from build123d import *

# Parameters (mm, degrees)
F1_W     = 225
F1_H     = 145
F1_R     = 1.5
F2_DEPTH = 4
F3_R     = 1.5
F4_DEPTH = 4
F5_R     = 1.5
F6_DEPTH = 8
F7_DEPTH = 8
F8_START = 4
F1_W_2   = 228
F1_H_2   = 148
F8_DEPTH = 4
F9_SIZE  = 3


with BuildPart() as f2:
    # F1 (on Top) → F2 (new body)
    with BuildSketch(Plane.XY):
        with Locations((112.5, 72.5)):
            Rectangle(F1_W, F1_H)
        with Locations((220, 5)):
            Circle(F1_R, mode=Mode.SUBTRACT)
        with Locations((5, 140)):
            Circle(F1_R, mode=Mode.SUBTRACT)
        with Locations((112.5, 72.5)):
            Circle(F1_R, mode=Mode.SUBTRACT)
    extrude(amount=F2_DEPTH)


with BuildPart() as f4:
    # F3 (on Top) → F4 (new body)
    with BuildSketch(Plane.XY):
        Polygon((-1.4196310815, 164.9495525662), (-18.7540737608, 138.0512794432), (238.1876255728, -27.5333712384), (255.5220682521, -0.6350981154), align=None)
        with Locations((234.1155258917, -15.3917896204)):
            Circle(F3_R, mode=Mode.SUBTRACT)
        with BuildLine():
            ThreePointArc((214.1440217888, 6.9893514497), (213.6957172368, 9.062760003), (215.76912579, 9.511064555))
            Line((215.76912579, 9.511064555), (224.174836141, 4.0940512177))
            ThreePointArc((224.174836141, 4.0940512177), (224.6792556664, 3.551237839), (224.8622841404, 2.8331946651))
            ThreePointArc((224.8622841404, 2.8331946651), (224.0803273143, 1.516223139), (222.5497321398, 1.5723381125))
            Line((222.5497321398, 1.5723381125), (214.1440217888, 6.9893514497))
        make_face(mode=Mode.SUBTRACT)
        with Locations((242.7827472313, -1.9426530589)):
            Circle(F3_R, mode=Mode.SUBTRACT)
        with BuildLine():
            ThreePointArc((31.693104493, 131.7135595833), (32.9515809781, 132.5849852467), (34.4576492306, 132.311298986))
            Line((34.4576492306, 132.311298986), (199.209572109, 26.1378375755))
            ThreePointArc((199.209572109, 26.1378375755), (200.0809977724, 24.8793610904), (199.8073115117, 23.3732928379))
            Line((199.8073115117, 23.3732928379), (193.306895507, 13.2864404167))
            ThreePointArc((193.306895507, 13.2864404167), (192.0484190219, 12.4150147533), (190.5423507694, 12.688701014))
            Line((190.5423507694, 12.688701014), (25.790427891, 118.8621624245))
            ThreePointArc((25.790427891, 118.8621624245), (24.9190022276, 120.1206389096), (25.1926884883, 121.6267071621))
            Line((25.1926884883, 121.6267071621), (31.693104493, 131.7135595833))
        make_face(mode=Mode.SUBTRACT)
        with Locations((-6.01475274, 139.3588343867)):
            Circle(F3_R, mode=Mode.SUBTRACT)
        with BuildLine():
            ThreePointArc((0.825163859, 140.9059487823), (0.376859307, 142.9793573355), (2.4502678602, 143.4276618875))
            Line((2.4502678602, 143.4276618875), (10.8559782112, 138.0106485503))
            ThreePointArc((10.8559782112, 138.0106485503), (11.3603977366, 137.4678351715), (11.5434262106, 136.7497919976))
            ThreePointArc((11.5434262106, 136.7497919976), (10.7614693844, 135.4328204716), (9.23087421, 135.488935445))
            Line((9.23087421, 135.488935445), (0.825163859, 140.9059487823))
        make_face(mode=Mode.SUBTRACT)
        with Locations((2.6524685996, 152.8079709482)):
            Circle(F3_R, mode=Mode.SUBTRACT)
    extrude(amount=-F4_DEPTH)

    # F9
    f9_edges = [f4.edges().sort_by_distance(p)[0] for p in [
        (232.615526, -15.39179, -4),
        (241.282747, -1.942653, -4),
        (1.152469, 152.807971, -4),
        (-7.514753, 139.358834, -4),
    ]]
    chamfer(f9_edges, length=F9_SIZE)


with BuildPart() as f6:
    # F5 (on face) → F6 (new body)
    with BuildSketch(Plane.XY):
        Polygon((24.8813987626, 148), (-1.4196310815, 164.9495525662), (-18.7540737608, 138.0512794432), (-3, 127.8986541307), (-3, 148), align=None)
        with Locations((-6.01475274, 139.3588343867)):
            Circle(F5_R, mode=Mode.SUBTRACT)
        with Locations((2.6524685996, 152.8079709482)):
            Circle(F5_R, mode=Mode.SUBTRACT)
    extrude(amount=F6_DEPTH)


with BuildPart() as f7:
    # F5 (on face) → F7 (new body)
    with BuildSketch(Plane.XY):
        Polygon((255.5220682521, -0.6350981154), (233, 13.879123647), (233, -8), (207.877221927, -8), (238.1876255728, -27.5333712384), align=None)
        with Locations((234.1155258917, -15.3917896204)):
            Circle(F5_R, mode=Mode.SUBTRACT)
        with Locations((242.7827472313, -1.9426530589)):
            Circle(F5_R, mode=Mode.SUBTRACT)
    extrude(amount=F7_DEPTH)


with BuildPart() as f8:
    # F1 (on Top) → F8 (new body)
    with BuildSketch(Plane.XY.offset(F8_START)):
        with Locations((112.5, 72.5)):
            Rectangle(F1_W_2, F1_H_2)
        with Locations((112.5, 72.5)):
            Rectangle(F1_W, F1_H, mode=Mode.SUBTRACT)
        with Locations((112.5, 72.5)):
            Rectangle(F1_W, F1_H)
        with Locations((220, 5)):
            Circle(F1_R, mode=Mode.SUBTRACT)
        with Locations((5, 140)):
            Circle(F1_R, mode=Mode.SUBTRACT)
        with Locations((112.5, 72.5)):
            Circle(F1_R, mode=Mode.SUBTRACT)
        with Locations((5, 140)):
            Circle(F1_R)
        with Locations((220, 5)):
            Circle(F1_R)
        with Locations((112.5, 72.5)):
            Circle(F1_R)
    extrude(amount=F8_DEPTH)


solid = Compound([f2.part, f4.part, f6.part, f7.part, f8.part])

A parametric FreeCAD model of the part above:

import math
import FreeCAD as App
import Part
import Sketcher

V = App.Vector
Q = App.Units.Quantity


def edges_at(feature, points):
    """Names of the edges that pass closest to the given points."""
    edges = feature.Shape.Edges
    near = lambda p: min(range(len(edges)), key=lambda i: edges[i].distToShape(Part.Vertex(*p))[0])
    return sorted({f"Edge{near(p) + 1}" for p in points})

doc = App.newDocument("Part")
body = doc.addObject("PartDesign::Body", "Body")

# Sketch on XY plane
sketch1 = body.newObject("Sketcher::SketchObject", "Sketch")
sketch1.AttachmentSupport = (doc.getObject("XY_Plane"), [""])
sketch1.MapMode = "FlatFace"
sketch1.addGeometry([
    Part.LineSegment(V(0, 145, 0), V(0, 0, 0)),  # 0
    Part.LineSegment(V(0, 0, 0), V(225, 0, 0)),  # 1
    Part.LineSegment(V(225, 0, 0), V(225, 145, 0)),  # 2
    Part.LineSegment(V(225, 145, 0), V(0, 145, 0)),  # 3
    Part.Circle(V(220, 5, 0), V(0, 0, 1), 1.5),  # 4
    Part.Circle(V(5, 140, 0), V(0, 0, 1), 1.5),  # 5
    Part.Circle(V(112.5, 72.5, 0), V(0, 0, 1), 1.5),  # 6
], False)
sketch1.addConstraint([
    Sketcher.Constraint("Coincident", 0, 2, 1, 1),
    Sketcher.Constraint("Coincident", 1, 2, 2, 1),
    Sketcher.Constraint("Coincident", 2, 2, 3, 1),
    Sketcher.Constraint("Coincident", 3, 2, 0, 1),
    Sketcher.Constraint("Vertical", 0),
    Sketcher.Constraint("Horizontal", 1),
    Sketcher.Constraint("Vertical", 2),
    Sketcher.Constraint("Horizontal", 3),
    Sketcher.Constraint("Coincident", 0, 2, -1, 1),
    Sketcher.Constraint("Equal", 4, 5),
    Sketcher.Constraint("Equal", 5, 6),
    Sketcher.Constraint("Diameter", 4, Q("3 mm")),
    Sketcher.Constraint("DistanceX", 1, 1, 1, 2, Q("225 mm")),
    Sketcher.Constraint("DistanceY", 0, 2, 0, 1, Q("145 mm")),
    Sketcher.Constraint("DistanceX", -1, 1, 4, 3, Q("220 mm")),
    Sketcher.Constraint("DistanceY", -1, 1, 4, 3, Q("5 mm")),
    Sketcher.Constraint("DistanceX", -1, 1, 5, 3, Q("5 mm")),
    Sketcher.Constraint("DistanceY", -1, 1, 5, 3, Q("140 mm")),
    Sketcher.Constraint("DistanceX", -1, 1, 6, 3, Q("112.5 mm")),
    Sketcher.Constraint("DistanceY", -1, 1, 6, 3, Q("72.5 mm")),
])
pad1 = body.newObject("PartDesign::Pad", "Pad")
pad1.Profile = sketch1
pad1.Length = 4
body2 = doc.addObject("PartDesign::Body", "Body001")

# Sketch on XY plane
sketch2 = body2.newObject("Sketcher::SketchObject", "Sketch001")
sketch2.AttachmentSupport = (doc.getObject("XY_Plane001"), [""])
sketch2.MapMode = "FlatFace"
sketch2.addGeometry([
    Part.LineSegment(V(-1.4, 164.9, 0), V(-18.8, 138.1, 0)),  # 0
    Part.LineSegment(V(-18.8, 138.1, 0), V(238.2, -27.5, 0)),  # 1
    Part.LineSegment(V(238.2, -27.5, 0), V(255.5, -0.6, 0)),  # 2
    Part.LineSegment(V(255.5, -0.6, 0), V(-1.4, 164.9, 0)),  # 3
    Part.Circle(V(234.1, -15.4, 0), V(0, 0, 1), 1.5),  # 4
    Part.Circle(V(242.8, -1.9, 0), V(0, 0, 1), 1.5),  # 5
    Part.LineSegment(V(222.5, 1.6, 0), V(214.1, 7, 0)),  # 6
    Part.ArcOfCircle(Part.Circle(V(215, 8.3, 0), V(0, 0, 1), 1.5), math.radians(57), math.radians(237)),  # 7
    Part.LineSegment(V(215.8, 9.5, 0), V(224.2, 4.1, 0)),  # 8
    Part.ArcOfCircle(Part.Circle(V(223.4, 2.8, 0), V(0, 0, 1), 1.5), math.radians(0), math.radians(57)),  # 9
    Part.ArcOfCircle(Part.Circle(V(223.4, 2.8, 0), V(0, 0, 1), 1.5), math.radians(-123), math.radians(0)),  # 10
    Part.LineSegment(V(25.2, 121.6, 0), V(31.7, 131.7, 0)),  # 11
    Part.ArcOfCircle(Part.Circle(V(33.4, 130.6, 0), V(0, 0, 1), 2), math.radians(57), math.radians(147)),  # 12
    Part.LineSegment(V(34.5, 132.3, 0), V(199.2, 26.1, 0)),  # 13
    Part.ArcOfCircle(Part.Circle(V(198.1, 24.5, 0), V(0, 0, 1), 2), math.radians(-33), math.radians(57)),  # 14
    Part.LineSegment(V(199.8, 23.4, 0), V(193.3, 13.3, 0)),  # 15
    Part.ArcOfCircle(Part.Circle(V(191.6, 14.4, 0), V(0, 0, 1), 2), math.radians(-123), math.radians(-33)),  # 16
    Part.LineSegment(V(190.5, 12.7, 0), V(25.8, 118.9, 0)),  # 17
    Part.ArcOfCircle(Part.Circle(V(26.9, 120.5, 0), V(0, 0, 1), 2), math.radians(147), math.radians(237)),  # 18
    Part.Circle(V(-6, 139.4, 0), V(0, 0, 1), 1.5),  # 19
    Part.LineSegment(V(9.2, 135.5, 0), V(0.8, 140.9, 0)),  # 20
    Part.ArcOfCircle(Part.Circle(V(1.6, 142.2, 0), V(0, 0, 1), 1.5), math.radians(57), math.radians(237)),  # 21
    Part.LineSegment(V(2.5, 143.4, 0), V(10.9, 138, 0)),  # 22
    Part.ArcOfCircle(Part.Circle(V(10, 136.7, 0), V(0, 0, 1), 1.5), math.radians(0), math.radians(57)),  # 23
    Part.ArcOfCircle(Part.Circle(V(10, 136.7, 0), V(0, 0, 1), 1.5), math.radians(-123), math.radians(0)),  # 24
    Part.Circle(V(2.7, 152.8, 0), V(0, 0, 1), 1.5),  # 25
], False)
sketch2.addConstraint([
    Sketcher.Constraint("Coincident", 0, 2, 1, 1),
    Sketcher.Constraint("Coincident", 1, 2, 2, 1),
    Sketcher.Constraint("Coincident", 2, 2, 3, 1),
    Sketcher.Constraint("Coincident", 3, 2, 0, 1),
    Sketcher.Constraint("Tangent", 6, 2, 7, 2),
    Sketcher.Constraint("Tangent", 7, 1, 8, 1),
    Sketcher.Constraint("Tangent", 8, 2, 9, 2),
    Sketcher.Constraint("Tangent", 9, 1, 10, 2),
    Sketcher.Constraint("Tangent", 10, 1, 6, 1),
    Sketcher.Constraint("Tangent", 11, 2, 12, 2),
    Sketcher.Constraint("Tangent", 12, 1, 13, 1),
    Sketcher.Constraint("Tangent", 13, 2, 14, 2),
    Sketcher.Constraint("Tangent", 14, 1, 15, 1),
    Sketcher.Constraint("Tangent", 15, 2, 16, 2),
    Sketcher.Constraint("Tangent", 16, 1, 17, 1),
    Sketcher.Constraint("Tangent", 17, 2, 18, 2),
    Sketcher.Constraint("Tangent", 18, 1, 11, 1),
    Sketcher.Constraint("Tangent", 20, 2, 21, 2),
    Sketcher.Constraint("Tangent", 21, 1, 22, 1),
    Sketcher.Constraint("Tangent", 22, 2, 23, 2),
    Sketcher.Constraint("Tangent", 23, 1, 24, 2),
    Sketcher.Constraint("Tangent", 24, 1, 20, 1),
    Sketcher.Constraint("Equal", 4, 5),
    Sketcher.Constraint("Equal", 5, 7),
    Sketcher.Constraint("Equal", 7, 9),
    Sketcher.Constraint("Equal", 9, 10),
    Sketcher.Constraint("Equal", 12, 14),
    Sketcher.Constraint("Equal", 14, 16),
    Sketcher.Constraint("Equal", 16, 18),
    Sketcher.Constraint("Equal", 10, 19),
    Sketcher.Constraint("Equal", 19, 21),
    Sketcher.Constraint("Equal", 21, 23),
    Sketcher.Constraint("Equal", 23, 24),
    Sketcher.Constraint("Equal", 24, 25),
    Sketcher.Constraint("Perpendicular", 0, 1),
    Sketcher.Constraint("Perpendicular", 1, 2),
    Sketcher.Constraint("Perpendicular", 2, 3),
    Sketcher.Constraint("Parallel", 3, 6),
    Sketcher.Constraint("Perpendicular", 8, 11),
    Sketcher.Constraint("Perpendicular", 11, 13),
    Sketcher.Constraint("Perpendicular", 13, 15),
    Sketcher.Constraint("Perpendicular", 15, 17),
    Sketcher.Constraint("Parallel", 17, 20),
    Sketcher.Constraint("Horizontal", 10, 3, 9, 1),
    Sketcher.Constraint("Horizontal", 24, 3, 23, 1),
    Sketcher.Constraint("Equal", 8, 20),
    Sketcher.Constraint("Diameter", 4, Q("3 mm")),
    Sketcher.Constraint("Radius", 12, Q("2 mm")),
    Sketcher.Constraint("Distance", 0, Q("32 mm")),
    Sketcher.Constraint("Distance", 6, Q("10 mm")),
    Sketcher.Constraint("Distance", 11, Q("12 mm")),
    Sketcher.Constraint("Distance", 13, Q("196 mm")),
    Sketcher.Constraint("DistanceX", 19, 3, 12, 3, Q("39.388999 mm")),
    Sketcher.Constraint("DistanceX", 13, 2, 7, 3, Q("15.747002 mm")),
    Sketcher.Constraint("DistanceX", 23, 3, 17, 2, Q("15.747002 mm")),
    Sketcher.Constraint("DistanceY", 2, 2, -1, 1, Q("0.635098 mm")),
    Sketcher.Constraint("DistanceY", -1, 1, 12, 1, Q("132.311299 mm")),
    Sketcher.Constraint("DistanceY", -1, 1, 16, 1, Q("12.688701 mm")),
    Sketcher.Constraint("DistanceX", 12, 3, 5, 3, Q("209.408501 mm")),
    Sketcher.Constraint("DistanceY", 9, 3, 14, 3, Q("21.623501 mm")),
    Sketcher.Constraint("DistanceY", 18, 3, 21, 3, Q("21.623501 mm")),
    Sketcher.Constraint("DistanceX", 0, 2, 23, 3, Q("28.7975 mm")),
    Sketcher.Constraint("DistanceX", 4, 3, 1, 2, Q("4.0721 mm")),
    Sketcher.Constraint("DistanceX", 3, 2, 25, 3, Q("4.0721 mm")),
    Sketcher.Constraint("DistanceY", 4, 3, -1, 1, Q("15.39179 mm")),
    Sketcher.Constraint("DistanceX", -1, 1, 14, 3, Q("198.126169 mm")),
    Sketcher.Constraint("DistanceY", -1, 1, 25, 3, Q("152.807971 mm")),
    Sketcher.Constraint("DistanceY", -1, 1, 0, 2, Q("138.051279 mm")),
    Sketcher.Constraint("DistanceY", 5, 3, 7, 3, Q("10.192861 mm")),
    Sketcher.Constraint("DistanceY", 18, 3, 19, 3, Q("18.81553 mm")),
])
pad2 = body2.newObject("PartDesign::Pad", "Pad001")
pad2.Profile = sketch2
pad2.Length = 4
pad2.Reversed = True
doc.recompute()

chamfer = body2.newObject("PartDesign::Chamfer", "Chamfer")
chamfer.Base = (pad2, edges_at(pad2, [
    (232.616, -15.392, -4),
    (241.283, -1.943, -4),
    (1.152, 152.808, -4),
    (-7.515, 139.359, -4),
]))
chamfer.Size = 3
body3 = doc.addObject("PartDesign::Body", "Body002")

# Sketch on XY plane
sketch3 = body3.newObject("Sketcher::SketchObject", "Sketch002")
sketch3.AttachmentSupport = (doc.getObject("XY_Plane002"), [""])
sketch3.MapMode = "FlatFace"
sketch3.addGeometry([
    Part.LineSegment(V(24.9, 148, 0), V(-1.4, 164.9, 0)),  # 0
    Part.LineSegment(V(-1.4, 164.9, 0), V(-18.8, 138.1, 0)),  # 1
    Part.LineSegment(V(-18.8, 138.1, 0), V(-3, 127.9, 0)),  # 2
    Part.LineSegment(V(-3, 127.9, 0), V(-3, 148, 0)),  # 3
    Part.LineSegment(V(-3, 148, 0), V(24.9, 148, 0)),  # 4
    Part.Circle(V(-6, 139.4, 0), V(0, 0, 1), 1.5),  # 5
    Part.Circle(V(2.7, 152.8, 0), V(0, 0, 1), 1.5),  # 6
], False)
sketch3.addConstraint([
    Sketcher.Constraint("Coincident", 0, 2, 1, 1),
    Sketcher.Constraint("Coincident", 1, 2, 2, 1),
    Sketcher.Constraint("Coincident", 2, 2, 3, 1),
    Sketcher.Constraint("Coincident", 3, 2, 4, 1),
    Sketcher.Constraint("Coincident", 4, 2, 0, 1),
    Sketcher.Constraint("Vertical", 3),
    Sketcher.Constraint("Horizontal", 4),
    Sketcher.Constraint("Equal", 5, 6),
    Sketcher.Constraint("Perpendicular", 0, 1),
    Sketcher.Constraint("Perpendicular", 1, 2),
    Sketcher.Constraint("Diameter", 5, Q("3 mm")),
    Sketcher.Constraint("Distance", 1, Q("32 mm")),
    Sketcher.Constraint("DistanceX", 2, 2, -1, 1, Q("3 mm")),
    Sketcher.Constraint("DistanceY", -1, 1, 3, 2, Q("148 mm")),
    Sketcher.Constraint("DistanceX", 4, 1, 4, 2, Q("27.881399 mm")),
    Sketcher.Constraint("DistanceX", 0, 2, 6, 3, Q("4.0721 mm")),
    Sketcher.Constraint("DistanceY", 2, 2, 0, 2, Q("37.050898 mm")),
    Sketcher.Constraint("Distance", 0, Q("31.289479 mm")),
    Sketcher.Constraint("DistanceY", -1, 1, 6, 3, Q("152.807971 mm")),
    Sketcher.Constraint("DistanceX", 5, 3, 6, 3, Q("8.667221 mm")),
    Sketcher.Constraint("DistanceY", 5, 3, 0, 2, Q("25.590718 mm")),
])
pad3 = body3.newObject("PartDesign::Pad", "Pad002")
pad3.Profile = sketch3
pad3.Length = 8
body4 = doc.addObject("PartDesign::Body", "Body003")

# Sketch on XY plane
sketch4 = body4.newObject("Sketcher::SketchObject", "Sketch003")
sketch4.AttachmentSupport = (doc.getObject("XY_Plane003"), [""])
sketch4.MapMode = "FlatFace"
sketch4.addGeometry([
    Part.LineSegment(V(255.5, -0.6, 0), V(233, 13.9, 0)),  # 0
    Part.LineSegment(V(233, 13.9, 0), V(233, -8, 0)),  # 1
    Part.LineSegment(V(233, -8, 0), V(207.9, -8, 0)),  # 2
    Part.LineSegment(V(207.9, -8, 0), V(238.2, -27.5, 0)),  # 3
    Part.LineSegment(V(238.2, -27.5, 0), V(255.5, -0.6, 0)),  # 4
    Part.Circle(V(234.1, -15.4, 0), V(0, 0, 1), 1.5),  # 5
    Part.Circle(V(242.8, -1.9, 0), V(0, 0, 1), 1.5),  # 6
], False)
sketch4.addConstraint([
    Sketcher.Constraint("Coincident", 0, 2, 1, 1),
    Sketcher.Constraint("Coincident", 1, 2, 2, 1),
    Sketcher.Constraint("Coincident", 2, 2, 3, 1),
    Sketcher.Constraint("Coincident", 3, 2, 4, 1),
    Sketcher.Constraint("Coincident", 4, 2, 0, 1),
    Sketcher.Constraint("Vertical", 1),
    Sketcher.Constraint("Horizontal", 2),
    Sketcher.Constraint("Equal", 5, 6),
    Sketcher.Constraint("Parallel", 0, 3),
    Sketcher.Constraint("Perpendicular", 3, 4),
    Sketcher.Constraint("Diameter", 5, Q("3 mm")),
    Sketcher.Constraint("Distance", 4, Q("32 mm")),
    Sketcher.Constraint("DistanceX", -1, 1, 0, 2, Q("233 mm")),
    Sketcher.Constraint("DistanceY", 1, 2, -1, 1, Q("8 mm")),
    Sketcher.Constraint("Distance", 3, Q("36.059301 mm")),
    Sketcher.Constraint("DistanceX", 2, 2, 2, 1, Q("25.122778 mm")),
    Sketcher.Constraint("DistanceY", 4, 2, -1, 1, Q("0.635098 mm")),
    Sketcher.Constraint("DistanceX", 5, 3, 3, 2, Q("4.0721 mm")),
    Sketcher.Constraint("DistanceY", 5, 3, -1, 1, Q("15.39179 mm")),
    Sketcher.Constraint("DistanceX", 5, 3, 6, 3, Q("8.667221 mm")),
    Sketcher.Constraint("DistanceY", 3, 2, 6, 3, Q("25.590718 mm")),
])
pad4 = body4.newObject("PartDesign::Pad", "Pad003")
pad4.Profile = sketch4
pad4.Length = 8
body5 = doc.addObject("PartDesign::Body", "Body004")

# Sketch on XY plane
sketch5 = body5.newObject("Sketcher::SketchObject", "Sketch004")
sketch5.AttachmentSupport = (doc.getObject("XY_Plane004"), [""])
sketch5.MapMode = "FlatFace"
sketch5.AttachmentOffset = App.Placement(V(0, 0, 4), App.Rotation())
sketch5.addGeometry([
    Part.LineSegment(V(-2, 146, 0), V(-2, -2, 0)),
    Part.LineSegment(V(-2, -2, 0), V(226, -2, 0)),
    Part.LineSegment(V(226, -2, 0), V(226, 146, 0)),
    Part.LineSegment(V(226, 146, 0), V(-2, 146, 0)),
], False)
sketch5.addConstraint([
    Sketcher.Constraint("Coincident", 0, 2, 1, 1),
    Sketcher.Constraint("Coincident", 1, 2, 2, 1),
    Sketcher.Constraint("Coincident", 2, 2, 3, 1),
    Sketcher.Constraint("Coincident", 3, 2, 0, 1),
    Sketcher.Constraint("Vertical", 0),
    Sketcher.Constraint("Horizontal", 1),
    Sketcher.Constraint("Vertical", 2),
    Sketcher.Constraint("Horizontal", 3),
    Sketcher.Constraint("DistanceX", 1, 1, 1, 2, Q("228 mm")),
    Sketcher.Constraint("DistanceY", 0, 2, 0, 1, Q("148 mm")),
    Sketcher.Constraint("DistanceX", 0, 2, -1, 1, Q("1.5 mm")),
    Sketcher.Constraint("DistanceY", 0, 2, -1, 1, Q("1.5 mm")),
])
pad5 = body5.newObject("PartDesign::Pad", "Pad004")
pad5.Profile = sketch5
pad5.Length = 4

doc.recompute()
